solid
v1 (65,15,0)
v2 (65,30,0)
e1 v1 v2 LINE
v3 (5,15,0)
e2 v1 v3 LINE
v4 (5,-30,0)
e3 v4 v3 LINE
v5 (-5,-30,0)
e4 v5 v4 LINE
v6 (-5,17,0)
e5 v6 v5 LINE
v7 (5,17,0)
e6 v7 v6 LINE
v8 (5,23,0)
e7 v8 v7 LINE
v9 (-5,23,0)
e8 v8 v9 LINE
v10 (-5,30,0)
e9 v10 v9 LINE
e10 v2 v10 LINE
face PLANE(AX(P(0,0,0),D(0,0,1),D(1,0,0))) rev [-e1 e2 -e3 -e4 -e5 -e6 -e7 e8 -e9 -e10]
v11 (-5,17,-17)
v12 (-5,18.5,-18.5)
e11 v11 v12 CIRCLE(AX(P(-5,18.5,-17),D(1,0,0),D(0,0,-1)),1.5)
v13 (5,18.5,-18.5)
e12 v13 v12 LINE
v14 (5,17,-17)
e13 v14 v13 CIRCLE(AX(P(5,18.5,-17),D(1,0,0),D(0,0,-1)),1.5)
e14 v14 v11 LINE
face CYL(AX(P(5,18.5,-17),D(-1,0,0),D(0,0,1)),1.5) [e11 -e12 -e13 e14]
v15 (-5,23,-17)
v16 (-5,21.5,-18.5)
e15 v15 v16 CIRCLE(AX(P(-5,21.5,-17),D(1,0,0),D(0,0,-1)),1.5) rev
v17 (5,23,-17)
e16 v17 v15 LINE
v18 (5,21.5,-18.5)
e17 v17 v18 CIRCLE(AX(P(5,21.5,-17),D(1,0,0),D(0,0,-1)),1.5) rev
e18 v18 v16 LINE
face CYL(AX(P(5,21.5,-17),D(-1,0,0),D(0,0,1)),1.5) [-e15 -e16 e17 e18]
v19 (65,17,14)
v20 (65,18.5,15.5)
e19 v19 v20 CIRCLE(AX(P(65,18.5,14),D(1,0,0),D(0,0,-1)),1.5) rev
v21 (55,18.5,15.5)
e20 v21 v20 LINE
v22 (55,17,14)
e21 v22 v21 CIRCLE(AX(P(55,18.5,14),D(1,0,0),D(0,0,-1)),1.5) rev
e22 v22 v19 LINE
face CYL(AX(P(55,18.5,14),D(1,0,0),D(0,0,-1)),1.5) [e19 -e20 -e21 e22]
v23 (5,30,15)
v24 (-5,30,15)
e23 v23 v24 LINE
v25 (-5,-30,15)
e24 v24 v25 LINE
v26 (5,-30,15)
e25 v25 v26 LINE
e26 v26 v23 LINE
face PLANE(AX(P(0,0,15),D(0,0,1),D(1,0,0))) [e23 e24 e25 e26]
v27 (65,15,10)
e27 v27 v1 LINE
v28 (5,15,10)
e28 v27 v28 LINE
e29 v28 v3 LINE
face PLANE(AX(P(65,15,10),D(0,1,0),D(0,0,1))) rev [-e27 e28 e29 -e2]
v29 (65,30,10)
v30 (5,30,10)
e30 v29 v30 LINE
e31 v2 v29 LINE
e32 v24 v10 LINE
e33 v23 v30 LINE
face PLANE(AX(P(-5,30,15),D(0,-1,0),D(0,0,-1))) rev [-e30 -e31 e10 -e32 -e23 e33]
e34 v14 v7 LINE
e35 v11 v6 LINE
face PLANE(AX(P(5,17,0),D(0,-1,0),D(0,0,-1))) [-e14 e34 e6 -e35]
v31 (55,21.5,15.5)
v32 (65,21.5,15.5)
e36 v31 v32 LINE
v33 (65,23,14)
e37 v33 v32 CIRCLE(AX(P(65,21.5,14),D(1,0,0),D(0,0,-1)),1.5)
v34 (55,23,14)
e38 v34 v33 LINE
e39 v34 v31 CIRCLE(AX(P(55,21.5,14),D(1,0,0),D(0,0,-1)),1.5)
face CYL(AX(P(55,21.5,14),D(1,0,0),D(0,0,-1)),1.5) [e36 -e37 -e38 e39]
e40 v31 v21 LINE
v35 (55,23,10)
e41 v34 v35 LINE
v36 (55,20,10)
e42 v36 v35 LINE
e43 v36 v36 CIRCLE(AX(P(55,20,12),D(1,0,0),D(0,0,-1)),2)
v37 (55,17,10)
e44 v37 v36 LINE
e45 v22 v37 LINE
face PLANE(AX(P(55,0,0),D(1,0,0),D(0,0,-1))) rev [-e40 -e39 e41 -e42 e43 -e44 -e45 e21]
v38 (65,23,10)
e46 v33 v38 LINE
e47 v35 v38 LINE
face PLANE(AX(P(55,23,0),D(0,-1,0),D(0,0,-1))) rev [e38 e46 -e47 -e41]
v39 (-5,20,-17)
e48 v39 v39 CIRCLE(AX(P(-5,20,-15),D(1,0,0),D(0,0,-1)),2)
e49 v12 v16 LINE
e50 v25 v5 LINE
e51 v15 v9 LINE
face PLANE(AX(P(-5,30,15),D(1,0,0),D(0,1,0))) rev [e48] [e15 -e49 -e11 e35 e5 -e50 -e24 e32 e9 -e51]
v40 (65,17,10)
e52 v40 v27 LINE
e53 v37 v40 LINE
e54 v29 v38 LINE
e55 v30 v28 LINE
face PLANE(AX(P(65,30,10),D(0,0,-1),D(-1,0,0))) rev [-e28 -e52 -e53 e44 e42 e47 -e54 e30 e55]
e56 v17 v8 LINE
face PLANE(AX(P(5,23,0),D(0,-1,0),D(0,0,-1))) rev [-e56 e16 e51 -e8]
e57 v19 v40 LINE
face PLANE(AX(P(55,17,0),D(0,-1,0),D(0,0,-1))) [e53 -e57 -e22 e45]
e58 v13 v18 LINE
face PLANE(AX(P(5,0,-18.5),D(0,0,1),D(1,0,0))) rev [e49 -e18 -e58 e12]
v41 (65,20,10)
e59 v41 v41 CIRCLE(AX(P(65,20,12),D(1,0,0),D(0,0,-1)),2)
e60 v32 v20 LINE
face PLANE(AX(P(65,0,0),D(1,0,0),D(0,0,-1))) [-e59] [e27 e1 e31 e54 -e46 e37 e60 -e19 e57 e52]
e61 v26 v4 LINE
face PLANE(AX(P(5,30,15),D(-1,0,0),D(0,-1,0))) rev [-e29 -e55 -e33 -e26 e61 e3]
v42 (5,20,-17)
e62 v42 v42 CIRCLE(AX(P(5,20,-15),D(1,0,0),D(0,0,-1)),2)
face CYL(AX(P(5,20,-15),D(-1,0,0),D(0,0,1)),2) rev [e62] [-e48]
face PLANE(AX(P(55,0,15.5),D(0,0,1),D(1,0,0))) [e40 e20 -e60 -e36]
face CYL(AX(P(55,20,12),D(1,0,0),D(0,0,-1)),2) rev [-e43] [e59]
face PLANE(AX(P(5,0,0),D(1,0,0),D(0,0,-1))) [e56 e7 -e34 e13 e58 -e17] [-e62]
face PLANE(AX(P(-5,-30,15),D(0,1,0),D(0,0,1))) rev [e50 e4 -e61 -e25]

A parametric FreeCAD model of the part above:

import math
import FreeCAD as App
import Part
import Sketcher
Q = App.Units.Quantity

doc = App.newDocument("Part")
body = doc.addObject("PartDesign::Body", "Body")

# Sketch on XY plane
sketch1 = body.newObject("Sketcher::SketchObject", "Sketch")
sketch1.AttachmentSupport = (doc.getObject("XY_Plane"), [""])
sketch1.MapMode = "FlatFace"
sketch1.addGeometry(Part.LineSegment(App.Vector(-5, 30, 0), App.Vector(-5, -30, 0)), False)
sketch1.addGeometry(Part.LineSegment(App.Vector(-5, -30, 0), App.Vector(5, -30, 0)), False)
sketch1.addGeometry(Part.LineSegment(App.Vector(5, -30, 0), App.Vector(5, 30, 0)), False)
sketch1.addGeometry(Part.LineSegment(App.Vector(5, 30, 0), App.Vector(-5, 30, 0)), False)
sketch1.addConstraint(Sketcher.Constraint("Coincident", 0, 2, 1, 1))
sketch1.addConstraint(Sketcher.Constraint("Coincident", 1, 2, 2, 1))
sketch1.addConstraint(Sketcher.Constraint("Coincident", 2, 2, 3, 1))
sketch1.addConstraint(Sketcher.Constraint("Coincident", 3, 2, 0, 1))
sketch1.addConstraint(Sketcher.Constraint("Vertical", 0))
sketch1.addConstraint(Sketcher.Constraint("Horizontal", 1))
sketch1.addConstraint(Sketcher.Constraint("Vertical", 2))
sketch1.addConstraint(Sketcher.Constraint("Horizontal", 3))
sketch1.addConstraint(Sketcher.Constraint("Symmetric", 0, 2, 2, 2, -1, 1))
sketch1.addConstraint(Sketcher.Constraint("DistanceX", 1, 1, 1, 2, Q("10 mm")))
sketch1.addConstraint(Sketcher.Constraint("DistanceY", 0, 2, 0, 1, Q("60 mm")))
pad1 = body.newObject("PartDesign::Pad", "Pad")
pad1.Profile = sketch1
pad1.Length = 15

# Sketch on YZ plane
sketch2 = body.newObject("Sketcher::SketchObject", "Sketch001")
sketch2.AttachmentSupport = (doc.getObject("YZ_Plane"), [""])
sketch2.MapMode = "FlatFace"
sketch2.AttachmentOffset = App.Placement(App.Vector(0, 0, 5), App.Rotation())
sketch2.addGeometry(Part.LineSegment(App.Vector(30, 10, 0), App.Vector(15, 10, 0)), False)
sketch2.addGeometry(Part.LineSegment(App.Vector(15, 10, 0), App.Vector(15, 0, 0)), False)
sketch2.addGeometry(Part.LineSegment(App.Vector(15, 0, 0), App.Vector(30, 0, 0)), False)
sketch2.addGeometry(Part.LineSegment(App.Vector(30, 0, 0), App.Vector(30, 10, 0)), False)
sketch2.addConstraint(Sketcher.Constraint("Coincident", 0, 2, 1, 1))
sketch2.addConstraint(Sketcher.Constraint("Coincident", 1, 2, 2, 1))
sketch2.addConstraint(Sketcher.Constraint("Coincident", 2, 2, 3, 1))
sketch2.addConstraint(Sketcher.Constraint("Coincident", 3, 2, 0, 1))
sketch2.addConstraint(Sketcher.Constraint("Horizontal", 0))
sketch2.addConstraint(Sketcher.Constraint("Vertical", 1))
sketch2.addConstraint(Sketcher.Constraint("Horizontal", 2))
sketch2.addConstraint(Sketcher.Constraint("Vertical", 3))
sketch2.addConstraint(Sketcher.Constraint("PointOnObject", 1, 2, -1))
sketch2.addConstraint(Sketcher.Constraint("DistanceX", 0, 2, 0, 1, Q("15 mm")))
sketch2.addConstraint(Sketcher.Constraint("DistanceY", 1, 2, 1, 1, Q("10 mm")))
sketch2.addConstraint(Sketcher.Constraint("DistanceX", -1, 1, 0, 2, Q("15 mm")))
pad2 = body.newObject("PartDesign::Pad", "Pad001")
pad2.Profile = sketch2
pad2.Length = 60

# Sketch on YZ plane
sketch3 = body.newObject("Sketcher::SketchObject", "Sketch002")
sketch3.AttachmentSupport = (doc.getObject("YZ_Plane"), [""])
sketch3.MapMode = "FlatFace"
sketch3.AttachmentOffset = App.Placement(App.Vector(0, 0, 65), App.Rotation())
sketch3.addGeometry(Part.LineSegment(App.Vector(17, 10, 0), App.Vector(23, 10, 0)), False)
sketch3.addGeometry(Part.LineSegment(App.Vector(23, 10, 0), App.Vector(23, 14, 0)), False)
sketch3.addGeometry(Part.ArcOfCircle(Part.Circle(App.Vector(21.5, 14, 0), App.Vector(0, 0, 1), 1.5), math.radians(0), math.radians(90)), False)
sketch3.addGeometry(Part.LineSegment(App.Vector(21.5, 15.5, 0), App.Vector(18.5, 15.5, 0)), False)
sketch3.addGeometry(Part.ArcOfCircle(Part.Circle(App.Vector(18.5, 14, 0), App.Vector(0, 0, 1), 1.5), math.radians(90), math.radians(180)), False)
sketch3.addGeometry(Part.LineSegment(App.Vector(17, 14, 0), App.Vector(17, 10, 0)), False)
sketch3.addConstraint(Sketcher.Constraint("Coincident", 0, 2, 1, 1))
sketch3.addConstraint(Sketcher.Constraint("Tangent", 1, 2, 2, 1))
sketch3.addConstraint(Sketcher.Constraint("Tangent", 2, 2, 3, 1))
sketch3.addConstraint(Sketcher.Constraint("Tangent", 3, 2, 4, 1))
sketch3.addConstraint(Sketcher.Constraint("Tangent", 4, 2, 5, 1))
sketch3.addConstraint(Sketcher.Constraint("Coincident", 5, 2, 0, 1))
sketch3.addConstraint(Sketcher.Constraint("Horizontal", 0))
sketch3.addConstraint(Sketcher.Constraint("Vertical", 1))
sketch3.addConstraint(Sketcher.Constraint("Horizontal", 3))
sketch3.addConstraint(Sketcher.Constraint("Vertical", 5))
sketch3.addConstraint(Sketcher.Constraint("Equal", 2, 4))
sketch3.addConstraint(Sketcher.Constraint("Radius", 2, Q("1.5 mm")))
sketch3.addConstraint(Sketcher.Constraint("DistanceX", 0, 1, 0, 2, Q("6 mm")))
sketch3.addConstraint(Sketcher.Constraint("DistanceY", 1, 1, 1, 2, Q("4 mm")))
sketch3.addConstraint(Sketcher.Constraint("DistanceY", -1, 1, 2, 3, Q("14 mm")))
sketch3.addConstraint(Sketcher.Constraint("DistanceX", -1, 1, 0, 2, Q("23 mm")))
pad3 = body.newObject("PartDesign::Pad", "Pad002")
pad3.Profile = sketch3
pad3.Length = 10
pad3.Reversed = True

# Sketch on YZ plane
sketch4 = body.newObject("Sketcher::SketchObject", "Sketch003")
sketch4.AttachmentSupport = (doc.getObject("YZ_Plane"), [""])
sketch4.MapMode = "FlatFace"
sketch4.AttachmentOffset = App.Placement(App.Vector(0, 0, 65), App.Rotation())
sketch4.addGeometry(Part.Circle(App.Vector(20, 12, 0), App.Vector(0, 0, 1), 2), False)
sketch4.addConstraint(Sketcher.Constraint("Diameter", 0, Q("4 mm")))
sketch4.addConstraint(Sketcher.Constraint("DistanceX", -1, 1, 0, 3, Q("20 mm")))
sketch4.addConstraint(Sketcher.Constraint("DistanceY", -1, 1, 0, 3, Q("12 mm")))
pocket1 = body.newObject("PartDesign::Pocket", "Pocket")
pocket1.Profile = sketch4
pocket1.Length = 10

# Sketch on YZ plane
sketch5 = body.newObject("Sketcher::SketchObject", "Sketch004")
sketch5.AttachmentSupport = (doc.getObject("YZ_Plane"), [""])
sketch5.MapMode = "FlatFace"
sketch5.AttachmentOffset = App.Placement(App.Vector(0, 0, -5), App.Rotation())
sketch5.addGeometry(Part.LineSegment(App.Vector(23, 0, 0), App.Vector(17, 0, 0)), False)
sketch5.addGeometry(Part.LineSegment(App.Vector(17, 0, 0), App.Vector(17, -17, 0)), False)
sketch5.addGeometry(Part.ArcOfCircle(Part.Circle(App.Vector(18.5, -17, 0), App.Vector(0, 0, 1), 1.5), math.radians(180), math.radians(270)), False)
sketch5.addGeometry(Part.LineSegment(App.Vector(18.5, -18.5, 0), App.Vector(21.5, -18.5, 0)), False)
sketch5.addGeometry(Part.ArcOfCircle(Part.Circle(App.Vector(21.5, -17, 0), App.Vector(0, 0, 1), 1.5), math.radians(-90), math.radians(0)), False)
sketch5.addGeometry(Part.LineSegment(App.Vector(23, -17, 0), App.Vector(23, 0, 0)), False)
sketch5.addGeometry(Part.Circle(App.Vector(20, -15, 0), App.Vector(0, 0, 1), 2), False)
sketch5.addConstraint(Sketcher.Constraint("Coincident", 0, 2, 1, 1))
sketch5.addConstraint(Sketcher.Constraint("Tangent", 1, 2, 2, 1))
sketch5.addConstraint(Sketcher.Constraint("Tangent", 2, 2, 3, 1))
sketch5.addConstraint(Sketcher.Constraint("Tangent", 3, 2, 4, 1))
sketch5.addConstraint(Sketcher.Constraint("Tangent", 4, 2, 5, 1))
sketch5.addConstraint(Sketcher.Constraint("Coincident", 5, 2, 0, 1))
sketch5.addConstraint(Sketcher.Constraint("Horizontal", 0))
sketch5.addConstraint(Sketcher.Constraint("Vertical", 1))
sketch5.addConstraint(Sketcher.Constraint("Horizontal", 3))
sketch5.addConstraint(Sketcher.Constraint("Vertical", 5))
sketch5.addConstraint(Sketcher.Constraint("Equal", 2, 4))
sketch5.addConstraint(Sketcher.Constraint("PointOnObject", 0, 2, -1))
sketch5.addConstraint(Sketcher.Constraint("Diameter", 6, Q("4 mm")))
sketch5.addConstraint(Sketcher.Constraint("Radius", 2, Q("1.5 mm")))
sketch5.addConstraint(Sketcher.Constraint("DistanceX", 0, 2, 0, 1, Q("6 mm")))
sketch5.addConstraint(Sketcher.Constraint("DistanceY", 1, 2, 1, 1, Q("17 mm")))
sketch5.addConstraint(Sketcher.Constraint("DistanceX", -1, 1, 6, 3, Q("20 mm")))
sketch5.addConstraint(Sketcher.Constraint("DistanceY", 6, 3, -1, 1, Q("15 mm")))
sketch5.addConstraint(Sketcher.Constraint("DistanceX", -1, 1, 0, 2, Q("17 mm")))
pad4 = body.newObject("PartDesign::Pad", "Pad003")
pad4.Profile = sketch5
pad4.Length = 10

doc.recompute()
